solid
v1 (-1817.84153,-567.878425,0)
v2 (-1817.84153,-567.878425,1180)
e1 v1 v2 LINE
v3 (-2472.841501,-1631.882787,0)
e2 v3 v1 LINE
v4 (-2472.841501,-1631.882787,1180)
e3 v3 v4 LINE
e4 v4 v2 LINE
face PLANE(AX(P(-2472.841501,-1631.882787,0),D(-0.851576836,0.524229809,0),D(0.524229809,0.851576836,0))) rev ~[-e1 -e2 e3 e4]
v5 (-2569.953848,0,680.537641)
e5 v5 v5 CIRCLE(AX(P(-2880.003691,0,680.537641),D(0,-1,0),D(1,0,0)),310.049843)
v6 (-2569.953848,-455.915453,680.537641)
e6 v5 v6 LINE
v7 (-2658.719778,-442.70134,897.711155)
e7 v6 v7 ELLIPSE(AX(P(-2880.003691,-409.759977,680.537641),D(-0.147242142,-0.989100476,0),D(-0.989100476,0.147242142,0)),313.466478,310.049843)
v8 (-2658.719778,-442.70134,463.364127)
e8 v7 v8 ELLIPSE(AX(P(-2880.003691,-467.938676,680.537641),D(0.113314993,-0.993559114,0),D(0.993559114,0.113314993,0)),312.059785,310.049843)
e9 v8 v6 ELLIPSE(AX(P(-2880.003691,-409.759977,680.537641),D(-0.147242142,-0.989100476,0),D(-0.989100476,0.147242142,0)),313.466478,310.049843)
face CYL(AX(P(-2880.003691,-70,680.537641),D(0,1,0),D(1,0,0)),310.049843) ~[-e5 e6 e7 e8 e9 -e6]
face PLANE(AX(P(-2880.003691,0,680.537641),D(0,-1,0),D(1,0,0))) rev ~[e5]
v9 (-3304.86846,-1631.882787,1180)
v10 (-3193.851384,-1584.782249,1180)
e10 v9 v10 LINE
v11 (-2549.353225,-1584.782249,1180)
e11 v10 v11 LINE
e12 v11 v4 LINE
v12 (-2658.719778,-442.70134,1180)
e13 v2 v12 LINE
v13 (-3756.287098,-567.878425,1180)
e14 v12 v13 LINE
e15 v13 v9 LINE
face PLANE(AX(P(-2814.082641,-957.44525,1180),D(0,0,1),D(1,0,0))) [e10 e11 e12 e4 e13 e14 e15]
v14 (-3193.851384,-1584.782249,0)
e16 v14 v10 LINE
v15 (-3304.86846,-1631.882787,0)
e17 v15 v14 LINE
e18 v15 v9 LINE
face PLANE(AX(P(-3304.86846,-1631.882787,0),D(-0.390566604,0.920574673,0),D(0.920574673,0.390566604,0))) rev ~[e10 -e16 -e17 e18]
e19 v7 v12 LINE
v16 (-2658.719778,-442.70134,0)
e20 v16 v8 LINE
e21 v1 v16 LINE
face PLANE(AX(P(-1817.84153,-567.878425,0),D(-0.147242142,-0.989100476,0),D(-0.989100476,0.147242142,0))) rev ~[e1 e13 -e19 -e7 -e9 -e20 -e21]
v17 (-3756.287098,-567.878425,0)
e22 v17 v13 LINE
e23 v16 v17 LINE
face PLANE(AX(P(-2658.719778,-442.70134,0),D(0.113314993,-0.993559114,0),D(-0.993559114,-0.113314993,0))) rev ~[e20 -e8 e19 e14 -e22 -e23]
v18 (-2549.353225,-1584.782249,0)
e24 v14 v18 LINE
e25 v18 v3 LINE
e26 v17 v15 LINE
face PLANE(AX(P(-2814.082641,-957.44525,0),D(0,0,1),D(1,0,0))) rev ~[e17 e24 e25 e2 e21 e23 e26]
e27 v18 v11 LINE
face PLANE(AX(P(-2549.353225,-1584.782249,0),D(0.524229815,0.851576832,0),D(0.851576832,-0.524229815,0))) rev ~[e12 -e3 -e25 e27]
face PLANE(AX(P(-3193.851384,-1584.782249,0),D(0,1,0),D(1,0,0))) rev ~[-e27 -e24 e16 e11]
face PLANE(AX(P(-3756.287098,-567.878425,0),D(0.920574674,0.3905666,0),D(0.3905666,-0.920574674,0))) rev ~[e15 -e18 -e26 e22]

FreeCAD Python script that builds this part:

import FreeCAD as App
import Part
import Sketcher
from FreeCAD import Vector
Q = App.Units.Quantity


def add_polygon(sketch, points):
    """Adds a closed chain of lines whose ends are joined by coincident constraints."""
    first, n = sketch.GeometryCount, len(points)
    for a, b in zip(points, points[1:] + points[:1]):
        sketch.addGeometry(Part.LineSegment(App.Vector(*a, 0), App.Vector(*b, 0)), False)
    for i in range(n):
        sketch.addConstraint(Sketcher.Constraint("Coincident", first + i, 2, first + (i + 1) % n, 1))

doc = App.newDocument("Part")
body = doc.addObject("PartDesign::Body", "Body")

# Sketch on XZ plane
sketch1 = body.newObject("Sketcher::SketchObject", "Sketch")
sketch1.AttachmentSupport = (doc.getObject("XZ_Plane"), [""])
sketch1.MapMode = "FlatFace"
sketch1.addGeometry(Part.Circle(Vector(-2880, 681, 0), Vector(0, 0, 1), 310), False)
sketch1.addConstraint(Sketcher.Constraint("Diameter", 0, Q("620.099686 mm")))
sketch1.addConstraint(Sketcher.Constraint("DistanceX", 0, 3, -1, 1, Q("2880.003691 mm")))
sketch1.addConstraint(Sketcher.Constraint("DistanceY", -1, 1, 0, 3, Q("680.537641 mm")))
pad1 = body.newObject("PartDesign::Pad", "Pad")
pad1.Profile = sketch1
pad1.Length = 70

# Sketch on XZ plane
sketch2 = body.newObject("Sketcher::SketchObject", "Sketch001")
sketch2.AttachmentSupport = (doc.getObject("XZ_Plane"), [""])
sketch2.MapMode = "FlatFace"
sketch2.AttachmentOffset = App.Placement(Vector(0, 0, 70), App.Rotation())
sketch2.addGeometry(Part.Circle(Vector(-2880, 681, 0), Vector(0, 0, 1), 310), False)
sketch2.addConstraint(Sketcher.Constraint("Diameter", 0, Q("620.099686 mm")))
sketch2.addConstraint(Sketcher.Constraint("DistanceX", 0, 3, -1, 1, Q("2880.003691 mm")))
sketch2.addConstraint(Sketcher.Constraint("DistanceY", -1, 1, 0, 3, Q("680.537641 mm")))
pad2 = body.newObject("PartDesign::Pad", "Pad001")
pad2.Profile = sketch2
pad2.Length = 800

# Sketch on XY plane
sketch3 = body.newObject("Sketcher::SketchObject", "Sketch002")
sketch3.AttachmentSupport = (doc.getObject("XY_Plane"), [""])
sketch3.MapMode = "FlatFace"
add_polygon(sketch3, [(-3756, -568), (-3305, -1632), (-3194, -1585), (-2549, -1585), (-2473, -1632), (-1818, -568), (-2659, -443)])  # lines 0-6
sketch3.addConstraint(Sketcher.Constraint("Horizontal", 2))
sketch3.addConstraint(Sketcher.Constraint("Perpendicular", 0, 1))
sketch3.addConstraint(Sketcher.Constraint("Perpendicular", 3, 4))
sketch3.addConstraint(Sketcher.Constraint("Horizontal", 0, 2, 3, 2))
sketch3.addConstraint(Sketcher.Constraint("Horizontal", 4, 2, 6, 2))
sketch3.addConstraint(Sketcher.Constraint("DistanceX", 2, 1, 2, 2, Q("644.498159 mm")))
sketch3.addConstraint(Sketcher.Constraint("DistanceX", 3, 2, -1, 1, Q("2472.841501 mm")))
sketch3.addConstraint(Sketcher.Constraint("Distance", 0, Q("1155.804512 mm")))
sketch3.addConstraint(Sketcher.Constraint("DistanceX", 0, 2, -1, 1, Q("3304.86846 mm")))
sketch3.addConstraint(Sketcher.Constraint("DistanceY", 1, 2, -1, 1, Q("1584.782249 mm")))
sketch3.addConstraint(Sketcher.Constraint("DistanceX", 4, 2, -1, 1, Q("1817.84153 mm")))
sketch3.addConstraint(Sketcher.Constraint("DistanceX", 5, 2, -1, 1, Q("2658.719778 mm")))
sketch3.addConstraint(Sketcher.Constraint("DistanceY", 5, 2, -1, 1, Q("442.70134 mm")))
sketch3.addConstraint(Sketcher.Constraint("DistanceX", 6, 2, 5, 2, Q("1097.56732 mm")))
pad3 = body.newObject("PartDesign::Pad", "Pad002")
pad3.Profile = sketch3
pad3.Length = 1180

doc.recompute()
